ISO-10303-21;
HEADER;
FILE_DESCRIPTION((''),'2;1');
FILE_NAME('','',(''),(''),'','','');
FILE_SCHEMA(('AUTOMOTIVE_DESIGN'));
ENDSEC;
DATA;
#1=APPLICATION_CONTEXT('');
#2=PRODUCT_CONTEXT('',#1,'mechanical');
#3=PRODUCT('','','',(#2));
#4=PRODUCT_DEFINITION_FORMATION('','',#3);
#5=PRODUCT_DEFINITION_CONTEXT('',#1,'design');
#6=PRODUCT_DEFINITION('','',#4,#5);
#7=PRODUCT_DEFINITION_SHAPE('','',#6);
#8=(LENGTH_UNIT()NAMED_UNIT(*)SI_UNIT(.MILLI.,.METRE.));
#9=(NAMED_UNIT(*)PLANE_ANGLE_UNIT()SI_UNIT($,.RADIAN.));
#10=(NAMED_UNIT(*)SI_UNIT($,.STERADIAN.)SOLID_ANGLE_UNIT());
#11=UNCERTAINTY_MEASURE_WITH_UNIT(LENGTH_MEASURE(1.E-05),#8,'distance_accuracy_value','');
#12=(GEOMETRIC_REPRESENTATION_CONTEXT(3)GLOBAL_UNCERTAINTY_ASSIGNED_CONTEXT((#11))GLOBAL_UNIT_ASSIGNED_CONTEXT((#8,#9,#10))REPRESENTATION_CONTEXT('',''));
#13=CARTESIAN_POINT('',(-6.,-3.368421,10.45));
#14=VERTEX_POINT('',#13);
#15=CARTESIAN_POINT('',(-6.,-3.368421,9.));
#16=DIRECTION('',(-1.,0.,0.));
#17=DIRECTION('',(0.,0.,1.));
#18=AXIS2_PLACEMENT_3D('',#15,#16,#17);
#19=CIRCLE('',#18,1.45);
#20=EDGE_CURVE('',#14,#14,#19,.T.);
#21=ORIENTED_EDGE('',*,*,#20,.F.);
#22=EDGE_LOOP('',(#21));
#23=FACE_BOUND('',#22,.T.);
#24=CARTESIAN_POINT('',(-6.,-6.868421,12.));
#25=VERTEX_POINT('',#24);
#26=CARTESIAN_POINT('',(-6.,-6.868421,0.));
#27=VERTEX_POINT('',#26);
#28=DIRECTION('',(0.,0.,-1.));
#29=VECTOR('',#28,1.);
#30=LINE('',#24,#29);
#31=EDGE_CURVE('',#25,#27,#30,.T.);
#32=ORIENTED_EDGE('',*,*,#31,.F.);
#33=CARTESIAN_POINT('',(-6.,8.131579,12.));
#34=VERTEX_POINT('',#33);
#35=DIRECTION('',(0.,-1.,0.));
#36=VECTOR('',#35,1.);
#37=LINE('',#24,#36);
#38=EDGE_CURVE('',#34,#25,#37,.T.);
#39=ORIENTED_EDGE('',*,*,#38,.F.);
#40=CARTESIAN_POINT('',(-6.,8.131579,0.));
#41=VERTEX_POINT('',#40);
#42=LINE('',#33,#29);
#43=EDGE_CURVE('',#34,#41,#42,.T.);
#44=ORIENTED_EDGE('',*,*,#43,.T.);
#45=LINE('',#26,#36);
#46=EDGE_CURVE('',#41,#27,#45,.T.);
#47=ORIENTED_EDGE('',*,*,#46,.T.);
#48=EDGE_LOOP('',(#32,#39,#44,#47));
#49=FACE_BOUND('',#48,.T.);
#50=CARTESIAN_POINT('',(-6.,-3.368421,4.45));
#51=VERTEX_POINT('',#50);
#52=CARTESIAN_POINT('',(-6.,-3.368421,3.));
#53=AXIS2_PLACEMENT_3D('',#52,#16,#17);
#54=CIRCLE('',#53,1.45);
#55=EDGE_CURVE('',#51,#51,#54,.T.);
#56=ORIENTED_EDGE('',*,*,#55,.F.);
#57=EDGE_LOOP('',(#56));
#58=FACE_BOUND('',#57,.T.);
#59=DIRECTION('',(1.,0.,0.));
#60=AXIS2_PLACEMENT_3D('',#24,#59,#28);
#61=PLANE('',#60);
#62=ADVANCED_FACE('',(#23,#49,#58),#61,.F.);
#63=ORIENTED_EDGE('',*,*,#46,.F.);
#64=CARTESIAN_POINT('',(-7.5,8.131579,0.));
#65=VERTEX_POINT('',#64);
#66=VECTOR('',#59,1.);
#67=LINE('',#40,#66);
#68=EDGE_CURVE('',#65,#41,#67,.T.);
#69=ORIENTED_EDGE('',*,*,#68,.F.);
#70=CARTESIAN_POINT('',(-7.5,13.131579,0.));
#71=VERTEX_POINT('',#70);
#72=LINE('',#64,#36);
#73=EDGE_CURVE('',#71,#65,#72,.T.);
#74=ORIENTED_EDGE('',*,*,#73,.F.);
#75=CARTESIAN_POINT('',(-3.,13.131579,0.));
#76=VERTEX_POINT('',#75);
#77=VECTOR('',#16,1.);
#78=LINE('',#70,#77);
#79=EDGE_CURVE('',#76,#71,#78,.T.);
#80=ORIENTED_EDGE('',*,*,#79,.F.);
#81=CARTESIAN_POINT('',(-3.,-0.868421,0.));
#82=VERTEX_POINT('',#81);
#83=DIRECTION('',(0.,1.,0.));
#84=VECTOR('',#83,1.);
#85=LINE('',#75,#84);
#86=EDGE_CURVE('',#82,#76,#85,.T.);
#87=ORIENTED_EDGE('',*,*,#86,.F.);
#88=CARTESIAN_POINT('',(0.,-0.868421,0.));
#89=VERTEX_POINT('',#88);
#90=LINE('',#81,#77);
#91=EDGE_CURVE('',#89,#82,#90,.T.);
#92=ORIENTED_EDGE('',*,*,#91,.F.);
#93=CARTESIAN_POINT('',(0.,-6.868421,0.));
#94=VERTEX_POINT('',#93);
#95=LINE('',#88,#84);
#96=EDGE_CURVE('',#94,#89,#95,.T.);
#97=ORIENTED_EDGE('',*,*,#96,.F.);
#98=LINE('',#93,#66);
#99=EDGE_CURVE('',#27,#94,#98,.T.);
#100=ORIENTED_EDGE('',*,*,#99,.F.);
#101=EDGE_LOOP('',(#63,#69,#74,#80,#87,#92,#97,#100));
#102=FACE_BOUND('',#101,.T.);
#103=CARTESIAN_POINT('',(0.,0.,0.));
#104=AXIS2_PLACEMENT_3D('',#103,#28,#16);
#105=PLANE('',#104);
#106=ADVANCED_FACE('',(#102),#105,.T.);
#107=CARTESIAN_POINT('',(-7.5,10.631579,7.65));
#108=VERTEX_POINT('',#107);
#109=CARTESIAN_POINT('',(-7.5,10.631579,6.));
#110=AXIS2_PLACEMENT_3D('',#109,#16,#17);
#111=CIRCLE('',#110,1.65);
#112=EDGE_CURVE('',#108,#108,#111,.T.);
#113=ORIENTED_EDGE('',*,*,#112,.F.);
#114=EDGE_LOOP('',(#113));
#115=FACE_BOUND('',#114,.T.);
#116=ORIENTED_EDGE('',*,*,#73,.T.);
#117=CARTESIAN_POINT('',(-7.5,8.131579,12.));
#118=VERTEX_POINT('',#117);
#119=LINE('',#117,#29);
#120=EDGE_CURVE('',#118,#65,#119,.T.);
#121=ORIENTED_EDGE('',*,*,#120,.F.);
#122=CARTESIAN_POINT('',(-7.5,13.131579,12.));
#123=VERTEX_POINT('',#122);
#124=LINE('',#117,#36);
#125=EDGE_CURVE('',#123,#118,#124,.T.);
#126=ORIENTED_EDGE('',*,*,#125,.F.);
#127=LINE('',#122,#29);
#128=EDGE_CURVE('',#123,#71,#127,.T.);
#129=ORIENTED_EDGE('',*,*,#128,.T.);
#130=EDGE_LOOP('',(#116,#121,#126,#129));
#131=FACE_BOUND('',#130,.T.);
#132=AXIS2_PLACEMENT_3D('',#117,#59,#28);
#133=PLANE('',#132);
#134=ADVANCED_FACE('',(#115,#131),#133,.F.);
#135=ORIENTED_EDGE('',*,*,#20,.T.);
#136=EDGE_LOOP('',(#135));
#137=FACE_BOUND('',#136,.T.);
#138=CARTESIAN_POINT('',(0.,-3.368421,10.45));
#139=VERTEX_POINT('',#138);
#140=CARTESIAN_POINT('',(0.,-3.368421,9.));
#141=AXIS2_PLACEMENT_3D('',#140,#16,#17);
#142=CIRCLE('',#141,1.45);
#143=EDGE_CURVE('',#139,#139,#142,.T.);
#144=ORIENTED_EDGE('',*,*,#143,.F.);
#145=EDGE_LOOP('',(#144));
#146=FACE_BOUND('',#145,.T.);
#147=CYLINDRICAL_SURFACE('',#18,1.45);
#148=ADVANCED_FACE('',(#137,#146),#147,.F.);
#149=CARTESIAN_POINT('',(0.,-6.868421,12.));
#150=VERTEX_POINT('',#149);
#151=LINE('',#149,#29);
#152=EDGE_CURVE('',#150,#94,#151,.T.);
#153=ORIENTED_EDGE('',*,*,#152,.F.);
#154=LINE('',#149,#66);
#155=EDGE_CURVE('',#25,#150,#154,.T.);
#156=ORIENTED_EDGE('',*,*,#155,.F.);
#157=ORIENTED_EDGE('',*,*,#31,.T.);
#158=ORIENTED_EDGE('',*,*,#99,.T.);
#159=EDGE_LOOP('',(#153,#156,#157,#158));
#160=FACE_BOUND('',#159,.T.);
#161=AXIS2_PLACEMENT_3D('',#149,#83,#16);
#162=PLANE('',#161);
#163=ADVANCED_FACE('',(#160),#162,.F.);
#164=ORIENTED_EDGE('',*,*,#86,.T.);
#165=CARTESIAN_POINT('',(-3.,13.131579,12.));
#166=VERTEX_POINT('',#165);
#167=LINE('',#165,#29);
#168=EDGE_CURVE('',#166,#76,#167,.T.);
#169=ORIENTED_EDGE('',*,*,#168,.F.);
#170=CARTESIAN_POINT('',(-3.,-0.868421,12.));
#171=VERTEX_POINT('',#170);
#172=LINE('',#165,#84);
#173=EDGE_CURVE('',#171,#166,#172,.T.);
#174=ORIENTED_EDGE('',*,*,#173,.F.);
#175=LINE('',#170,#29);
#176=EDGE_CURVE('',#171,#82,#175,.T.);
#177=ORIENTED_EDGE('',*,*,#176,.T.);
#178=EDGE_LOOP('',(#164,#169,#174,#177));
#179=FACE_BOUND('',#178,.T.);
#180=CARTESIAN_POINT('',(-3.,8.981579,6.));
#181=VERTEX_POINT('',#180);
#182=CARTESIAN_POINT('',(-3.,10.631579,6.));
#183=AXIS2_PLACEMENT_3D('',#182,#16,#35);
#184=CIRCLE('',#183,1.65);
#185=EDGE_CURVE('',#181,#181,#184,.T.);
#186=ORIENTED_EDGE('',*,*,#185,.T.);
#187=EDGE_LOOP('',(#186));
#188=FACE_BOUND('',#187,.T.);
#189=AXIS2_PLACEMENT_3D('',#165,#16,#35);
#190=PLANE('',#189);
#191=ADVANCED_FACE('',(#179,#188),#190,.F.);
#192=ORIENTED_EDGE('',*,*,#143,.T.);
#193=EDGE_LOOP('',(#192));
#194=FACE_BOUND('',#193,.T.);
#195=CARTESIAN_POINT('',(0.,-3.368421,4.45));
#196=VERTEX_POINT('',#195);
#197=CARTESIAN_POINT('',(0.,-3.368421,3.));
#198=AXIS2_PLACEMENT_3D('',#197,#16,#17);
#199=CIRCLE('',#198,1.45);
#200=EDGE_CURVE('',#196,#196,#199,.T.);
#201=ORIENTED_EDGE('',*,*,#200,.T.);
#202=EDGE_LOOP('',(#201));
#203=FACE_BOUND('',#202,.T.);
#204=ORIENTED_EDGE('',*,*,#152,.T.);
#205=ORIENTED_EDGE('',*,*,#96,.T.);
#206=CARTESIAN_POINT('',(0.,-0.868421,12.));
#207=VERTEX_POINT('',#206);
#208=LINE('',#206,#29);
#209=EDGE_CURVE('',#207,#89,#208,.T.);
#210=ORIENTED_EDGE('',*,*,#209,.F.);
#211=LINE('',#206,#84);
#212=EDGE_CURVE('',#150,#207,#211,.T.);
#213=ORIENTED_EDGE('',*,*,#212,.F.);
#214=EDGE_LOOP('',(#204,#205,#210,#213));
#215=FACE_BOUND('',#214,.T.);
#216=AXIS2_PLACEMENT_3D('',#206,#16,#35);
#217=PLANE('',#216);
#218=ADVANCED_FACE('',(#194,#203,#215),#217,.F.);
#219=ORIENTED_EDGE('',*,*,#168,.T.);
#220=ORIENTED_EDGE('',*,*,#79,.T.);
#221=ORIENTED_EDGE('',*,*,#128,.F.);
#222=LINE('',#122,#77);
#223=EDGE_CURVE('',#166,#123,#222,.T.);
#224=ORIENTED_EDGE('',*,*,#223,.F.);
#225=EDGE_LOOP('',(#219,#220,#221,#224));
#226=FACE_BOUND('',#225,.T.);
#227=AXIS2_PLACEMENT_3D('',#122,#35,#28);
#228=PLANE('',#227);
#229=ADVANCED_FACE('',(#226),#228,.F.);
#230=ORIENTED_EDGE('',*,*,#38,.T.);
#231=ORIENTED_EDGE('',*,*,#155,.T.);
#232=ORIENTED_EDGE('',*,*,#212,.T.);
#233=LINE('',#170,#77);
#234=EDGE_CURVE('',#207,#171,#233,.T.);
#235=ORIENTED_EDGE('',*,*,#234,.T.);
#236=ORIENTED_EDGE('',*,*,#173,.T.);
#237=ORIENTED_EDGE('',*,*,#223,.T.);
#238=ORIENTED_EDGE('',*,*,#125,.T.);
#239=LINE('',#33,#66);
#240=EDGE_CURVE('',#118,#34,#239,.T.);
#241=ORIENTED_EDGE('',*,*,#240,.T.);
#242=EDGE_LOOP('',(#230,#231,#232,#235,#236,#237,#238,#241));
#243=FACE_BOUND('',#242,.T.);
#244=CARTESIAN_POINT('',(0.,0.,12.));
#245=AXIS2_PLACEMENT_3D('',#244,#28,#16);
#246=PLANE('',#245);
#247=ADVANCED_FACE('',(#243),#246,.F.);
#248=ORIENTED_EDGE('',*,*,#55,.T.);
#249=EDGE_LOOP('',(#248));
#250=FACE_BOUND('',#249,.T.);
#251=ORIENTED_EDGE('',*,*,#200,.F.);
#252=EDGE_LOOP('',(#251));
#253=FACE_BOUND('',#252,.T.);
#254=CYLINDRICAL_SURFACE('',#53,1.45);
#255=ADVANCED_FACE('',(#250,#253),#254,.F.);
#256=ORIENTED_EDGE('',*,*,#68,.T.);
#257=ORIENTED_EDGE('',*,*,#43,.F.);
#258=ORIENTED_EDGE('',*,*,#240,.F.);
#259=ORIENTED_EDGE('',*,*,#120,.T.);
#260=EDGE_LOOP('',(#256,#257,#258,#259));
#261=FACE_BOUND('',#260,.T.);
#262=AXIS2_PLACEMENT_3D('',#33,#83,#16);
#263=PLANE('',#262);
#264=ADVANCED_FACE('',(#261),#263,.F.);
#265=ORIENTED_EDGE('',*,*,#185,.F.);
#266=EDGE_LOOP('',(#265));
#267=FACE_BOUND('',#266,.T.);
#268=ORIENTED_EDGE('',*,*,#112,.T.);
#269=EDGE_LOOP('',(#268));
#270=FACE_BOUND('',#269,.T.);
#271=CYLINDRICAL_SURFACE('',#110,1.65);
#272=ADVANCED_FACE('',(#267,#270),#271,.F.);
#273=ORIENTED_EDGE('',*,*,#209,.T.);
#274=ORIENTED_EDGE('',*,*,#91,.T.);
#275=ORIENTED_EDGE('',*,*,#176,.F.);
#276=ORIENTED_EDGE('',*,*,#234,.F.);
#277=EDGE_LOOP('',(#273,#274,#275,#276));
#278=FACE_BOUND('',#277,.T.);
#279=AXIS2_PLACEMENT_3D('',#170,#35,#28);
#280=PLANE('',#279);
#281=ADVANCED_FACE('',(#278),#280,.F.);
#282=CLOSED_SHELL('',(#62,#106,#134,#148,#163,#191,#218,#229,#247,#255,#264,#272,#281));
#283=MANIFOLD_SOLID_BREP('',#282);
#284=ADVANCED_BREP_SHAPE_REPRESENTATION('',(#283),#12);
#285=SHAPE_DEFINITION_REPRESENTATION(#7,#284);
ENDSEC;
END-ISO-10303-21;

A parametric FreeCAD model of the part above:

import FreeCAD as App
import Part
import Sketcher

V = App.Vector


def add_polygon(sketch, points):
    """Adds a closed chain of lines whose ends are joined by coincident constraints."""
    first, n = sketch.GeometryCount, len(points)
    for a, b in zip(points, points[1:] + points[:1]):
        sketch.addGeometry(Part.LineSegment(App.Vector(*a, 0), App.Vector(*b, 0)), False)
    for i in range(n):
        sketch.addConstraint(Sketcher.Constraint("Coincident", first + i, 2, first + (i + 1) % n, 1))

doc = App.newDocument("Part")
body = doc.addObject("PartDesign::Body", "Body")

# Sketch on XY plane
sketch1 = doc.addObject("Sketcher::SketchObject", "Sketch")
body.addObject(sketch1)
sketch1.AttachmentSupport = (doc.XY_Plane, [""])
sketch1.MapMode = "FlatFace"
add_polygon(sketch1, [(-6, -6.9), (0, -6.9), (0, -0.9), (-3, -0.9), (-3, 13.1), (-7.5, 13.1), (-7.5, 8.1), (-6, 8.1)])  # lines 0-7
sketch1.addConstraint(Sketcher.Constraint("Horizontal", 0))
sketch1.addConstraint(Sketcher.Constraint("Vertical", 1))
sketch1.addConstraint(Sketcher.Constraint("Horizontal", 2))
sketch1.addConstraint(Sketcher.Constraint("Vertical", 3))
sketch1.addConstraint(Sketcher.Constraint("Horizontal", 4))
sketch1.addConstraint(Sketcher.Constraint("Vertical", 5))
sketch1.addConstraint(Sketcher.Constraint("Horizontal", 6))
sketch1.addConstraint(Sketcher.Constraint("Vertical", 7))
sketch1.addConstraint(Sketcher.Constraint("PointOnObject", 0, 2, -2))
sketch1.addConstraint(Sketcher.Constraint("Equal", 0, 1))
sketch1.addConstraint(Sketcher.Constraint("DistanceX", 0, 1, 0, 2, 6.0))
sketch1.addConstraint(Sketcher.Constraint("DistanceX", 2, 2, 2, 1, 3.0))
sketch1.addConstraint(Sketcher.Constraint("DistanceY", 3, 1, 3, 2, 14.0))
sketch1.addConstraint(Sketcher.Constraint("DistanceY", 5, 2, 5, 1, 5.0))
sketch1.addConstraint(Sketcher.Constraint("DistanceX", 4, 2, 4, 1, 4.5))
sketch1.addConstraint(Sketcher.Constraint("DistanceY", 0, 2, -1, 1, 6.868421))
pad1 = doc.addObject("PartDesign::Pad", "Pad")
body.addObject(pad1)
pad1.Profile = sketch1
pad1.Length = 12

# Sketch on YZ plane
sketch2 = doc.addObject("Sketcher::SketchObject", "Sketch001")
body.addObject(sketch2)
sketch2.AttachmentSupport = (doc.YZ_Plane, [""])
sketch2.MapMode = "FlatFace"
sketch2.AttachmentOffset = App.Placement(V(0, 0, -6), App.Rotation())
sketch2.addGeometry(Part.Circle(V(-3.4, 3, 0), V(0, 0, 1), 1.4), False)
sketch2.addGeometry(Part.Circle(V(-3.4, 9, 0), V(0, 0, 1), 1.4), False)
sketch2.addConstraint(Sketcher.Constraint("Equal", 0, 1))
sketch2.addConstraint(Sketcher.Constraint("Vertical", 0, 3, 1, 3))
sketch2.addConstraint(Sketcher.Constraint("Diameter", 0, 2.9))
sketch2.addConstraint(Sketcher.Constraint("DistanceY", -1, 1, 0, 3, 3.0))
sketch2.addConstraint(Sketcher.Constraint("DistanceY", -1, 1, 1, 3, 9.0))
sketch2.addConstraint(Sketcher.Constraint("DistanceX", 0, 3, -1, 1, 3.368421))
doc.recompute()
hole = doc.addObject("PartDesign::Hole", "Hole")
body.addObject(hole)
hole.Profile = sketch2
hole.ThreadType = "None"
hole.Diameter = 2.9
hole.DepthType = "ThroughAll"
hole.Reversed = True

# Sketch on YZ plane
sketch3 = doc.addObject("Sketcher::SketchObject", "Sketch002")
body.addObject(sketch3)
sketch3.AttachmentSupport = (doc.YZ_Plane, [""])
sketch3.MapMode = "FlatFace"
sketch3.AttachmentOffset = App.Placement(V(0, 0, -7.5), App.Rotation())
sketch3.addGeometry(Part.Circle(V(10.6, 6, 0), V(0, 0, 1), 1.6), False)
sketch3.addConstraint(Sketcher.Constraint("Diameter", 0, 3.3))
sketch3.addConstraint(Sketcher.Constraint("DistanceY", -1, 1, 0, 3, 6.0))
sketch3.addConstraint(Sketcher.Constraint("DistanceX", -1, 1, 0, 3, 10.631579))
doc.recompute()
hole2 = doc.addObject("PartDesign::Hole", "Hole001")
body.addObject(hole2)
hole2.Profile = sketch3
hole2.ThreadType = "None"
hole2.Diameter = 3.3
hole2.DepthType = "ThroughAll"
hole2.Reversed = True

doc.recompute()
